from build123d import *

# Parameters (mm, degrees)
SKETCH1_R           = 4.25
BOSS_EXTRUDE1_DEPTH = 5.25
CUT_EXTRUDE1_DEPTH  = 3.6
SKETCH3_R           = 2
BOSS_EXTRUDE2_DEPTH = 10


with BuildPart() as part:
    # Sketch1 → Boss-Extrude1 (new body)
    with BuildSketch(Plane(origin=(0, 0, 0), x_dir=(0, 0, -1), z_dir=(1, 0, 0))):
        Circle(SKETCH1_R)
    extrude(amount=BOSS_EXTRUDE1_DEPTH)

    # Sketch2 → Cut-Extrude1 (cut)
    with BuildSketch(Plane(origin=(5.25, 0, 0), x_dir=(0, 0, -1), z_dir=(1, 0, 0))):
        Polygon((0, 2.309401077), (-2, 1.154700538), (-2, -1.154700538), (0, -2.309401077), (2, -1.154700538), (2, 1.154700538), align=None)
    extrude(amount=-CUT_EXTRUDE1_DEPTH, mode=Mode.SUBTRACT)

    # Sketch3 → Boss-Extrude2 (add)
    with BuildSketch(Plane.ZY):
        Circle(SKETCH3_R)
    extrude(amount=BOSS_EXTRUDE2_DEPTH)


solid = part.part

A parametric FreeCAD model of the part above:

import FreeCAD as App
import Part
import Sketcher
Q = App.Units.Quantity

doc = App.newDocument("Part")
params = doc.addObject("Spreadsheet::Sheet", "Params")
for row, (alias, value) in enumerate([
    ("sketch1_diameter", "8.5 mm"),
    ("pad1_length", "5.25 mm"),
    ("pocket1_length", "3.6 mm"),
    ("sketch3_diameter", "4 mm"),
    ("pad2_length", "10 mm"),
], start=1):
    params.set(f"A{row}", alias)
    params.set(f"B{row}", "=" + value)
    params.setAlias(f"B{row}", alias)

body = doc.addObject("PartDesign::Body", "Body")

sketch1 = doc.addObject("Sketcher::SketchObject", "Sketch")
body.addObject(sketch1)
sketch1.AttachmentSupport = (doc.YZ_Plane, [""])
sketch1.MapMode = "FlatFace"
sketch1.addGeometry(Part.Circle(App.Vector(0, 0, 0), App.Vector(0, 0, 1), 4.2), False)
sketch1.addConstraint(Sketcher.Constraint("Coincident", 0, 3, -1, 1))
sketch1.addConstraint(Sketcher.Constraint("Diameter", 0, Q("8.5 mm")))
sketch1.setExpression("Constraints[1]", "Params.sketch1_diameter")
pad1 = doc.addObject("PartDesign::Pad", "Pad")
body.addObject(pad1)
pad1.Profile = sketch1
pad1.setExpression("Length", "Params.pad1_length")

sketch2 = doc.addObject("Sketcher::SketchObject", "Sketch001")
body.addObject(sketch2)
sketch2.AttachmentSupport = (doc.YZ_Plane, [""])
sketch2.MapMode = "FlatFace"
sketch2.AttachmentOffset = App.Placement(App.Vector(0, 0, 5.25), App.Rotation())
sketch2.addGeometry(Part.LineSegment(App.Vector(2.3, 0, 0), App.Vector(1.2, 2, 0)), False)
sketch2.addGeometry(Part.LineSegment(App.Vector(1.2, 2, 0), App.Vector(-1.2, 2, 0)), False)
sketch2.addGeometry(Part.LineSegment(App.Vector(-1.2, 2, 0), App.Vector(-2.3, 0, 0)), False)
sketch2.addGeometry(Part.LineSegment(App.Vector(-2.3, 0, 0), App.Vector(-1.2, -2, 0)), False)
sketch2.addGeometry(Part.LineSegment(App.Vector(-1.2, -2, 0), App.Vector(1.2, -2, 0)), False)
sketch2.addGeometry(Part.LineSegment(App.Vector(1.2, -2, 0), App.Vector(2.3, 0, 0)), False)
sketch2.addConstraint(Sketcher.Constraint("Coincident", 0, 2, 1, 1))
sketch2.addConstraint(Sketcher.Constraint("Coincident", 1, 2, 2, 1))
sketch2.addConstraint(Sketcher.Constraint("Coincident", 2, 2, 3, 1))
sketch2.addConstraint(Sketcher.Constraint("Coincident", 3, 2, 4, 1))
sketch2.addConstraint(Sketcher.Constraint("Coincident", 4, 2, 5, 1))
sketch2.addConstraint(Sketcher.Constraint("Coincident", 5, 2, 0, 1))
sketch2.addConstraint(Sketcher.Constraint("Horizontal", 1))
sketch2.addConstraint(Sketcher.Constraint("Horizontal", 4))
sketch2.addConstraint(Sketcher.Constraint("Symmetric", 0, 2, 3, 2, -1, 1))
sketch2.addConstraint(Sketcher.Constraint("Symmetric", 2, 2, 5, 2, -1, 1))
sketch2.addConstraint(Sketcher.Constraint("PointOnObject", 2, 2, -1))
sketch2.addConstraint(Sketcher.Constraint("Parallel", 2, 5))
sketch2.addConstraint(Sketcher.Constraint("Vertical", 1, 2, 3, 2))
sketch2.addConstraint(Sketcher.Constraint("Angle", 0, Q("120 deg")))
sketch2.addConstraint(Sketcher.Constraint("DistanceY", -1, 1, 0, 2, Q("2 mm")))
sketch2.addConstraint(Sketcher.Constraint("DistanceX", 1, 2, 1, 1, Q("2.309401 mm")))
pocket1 = doc.addObject("PartDesign::Pocket", "Pocket")
body.addObject(pocket1)
pocket1.Profile = sketch2
pocket1.setExpression("Length", "Params.pocket1_length")

sketch3 = doc.addObject("Sketcher::SketchObject", "Sketch002")
body.addObject(sketch3)
sketch3.AttachmentSupport = (doc.YZ_Plane, [""])
sketch3.MapMode = "FlatFace"
sketch3.addGeometry(Part.Circle(App.Vector(0, 0, 0), App.Vector(0, 0, 1), 2), False)
sketch3.addConstraint(Sketcher.Constraint("Coincident", 0, 3, -1, 1))
sketch3.addConstraint(Sketcher.Constraint("Diameter", 0, Q("4 mm")))
sketch3.setExpression("Constraints[1]", "Params.sketch3_diameter")
pad2 = doc.addObject("PartDesign::Pad", "Pad001")
body.addObject(pad2)
pad2.Profile = sketch3
pad2.setExpression("Length", "Params.pad2_length")
pad2.Reversed = True

doc.recompute()
